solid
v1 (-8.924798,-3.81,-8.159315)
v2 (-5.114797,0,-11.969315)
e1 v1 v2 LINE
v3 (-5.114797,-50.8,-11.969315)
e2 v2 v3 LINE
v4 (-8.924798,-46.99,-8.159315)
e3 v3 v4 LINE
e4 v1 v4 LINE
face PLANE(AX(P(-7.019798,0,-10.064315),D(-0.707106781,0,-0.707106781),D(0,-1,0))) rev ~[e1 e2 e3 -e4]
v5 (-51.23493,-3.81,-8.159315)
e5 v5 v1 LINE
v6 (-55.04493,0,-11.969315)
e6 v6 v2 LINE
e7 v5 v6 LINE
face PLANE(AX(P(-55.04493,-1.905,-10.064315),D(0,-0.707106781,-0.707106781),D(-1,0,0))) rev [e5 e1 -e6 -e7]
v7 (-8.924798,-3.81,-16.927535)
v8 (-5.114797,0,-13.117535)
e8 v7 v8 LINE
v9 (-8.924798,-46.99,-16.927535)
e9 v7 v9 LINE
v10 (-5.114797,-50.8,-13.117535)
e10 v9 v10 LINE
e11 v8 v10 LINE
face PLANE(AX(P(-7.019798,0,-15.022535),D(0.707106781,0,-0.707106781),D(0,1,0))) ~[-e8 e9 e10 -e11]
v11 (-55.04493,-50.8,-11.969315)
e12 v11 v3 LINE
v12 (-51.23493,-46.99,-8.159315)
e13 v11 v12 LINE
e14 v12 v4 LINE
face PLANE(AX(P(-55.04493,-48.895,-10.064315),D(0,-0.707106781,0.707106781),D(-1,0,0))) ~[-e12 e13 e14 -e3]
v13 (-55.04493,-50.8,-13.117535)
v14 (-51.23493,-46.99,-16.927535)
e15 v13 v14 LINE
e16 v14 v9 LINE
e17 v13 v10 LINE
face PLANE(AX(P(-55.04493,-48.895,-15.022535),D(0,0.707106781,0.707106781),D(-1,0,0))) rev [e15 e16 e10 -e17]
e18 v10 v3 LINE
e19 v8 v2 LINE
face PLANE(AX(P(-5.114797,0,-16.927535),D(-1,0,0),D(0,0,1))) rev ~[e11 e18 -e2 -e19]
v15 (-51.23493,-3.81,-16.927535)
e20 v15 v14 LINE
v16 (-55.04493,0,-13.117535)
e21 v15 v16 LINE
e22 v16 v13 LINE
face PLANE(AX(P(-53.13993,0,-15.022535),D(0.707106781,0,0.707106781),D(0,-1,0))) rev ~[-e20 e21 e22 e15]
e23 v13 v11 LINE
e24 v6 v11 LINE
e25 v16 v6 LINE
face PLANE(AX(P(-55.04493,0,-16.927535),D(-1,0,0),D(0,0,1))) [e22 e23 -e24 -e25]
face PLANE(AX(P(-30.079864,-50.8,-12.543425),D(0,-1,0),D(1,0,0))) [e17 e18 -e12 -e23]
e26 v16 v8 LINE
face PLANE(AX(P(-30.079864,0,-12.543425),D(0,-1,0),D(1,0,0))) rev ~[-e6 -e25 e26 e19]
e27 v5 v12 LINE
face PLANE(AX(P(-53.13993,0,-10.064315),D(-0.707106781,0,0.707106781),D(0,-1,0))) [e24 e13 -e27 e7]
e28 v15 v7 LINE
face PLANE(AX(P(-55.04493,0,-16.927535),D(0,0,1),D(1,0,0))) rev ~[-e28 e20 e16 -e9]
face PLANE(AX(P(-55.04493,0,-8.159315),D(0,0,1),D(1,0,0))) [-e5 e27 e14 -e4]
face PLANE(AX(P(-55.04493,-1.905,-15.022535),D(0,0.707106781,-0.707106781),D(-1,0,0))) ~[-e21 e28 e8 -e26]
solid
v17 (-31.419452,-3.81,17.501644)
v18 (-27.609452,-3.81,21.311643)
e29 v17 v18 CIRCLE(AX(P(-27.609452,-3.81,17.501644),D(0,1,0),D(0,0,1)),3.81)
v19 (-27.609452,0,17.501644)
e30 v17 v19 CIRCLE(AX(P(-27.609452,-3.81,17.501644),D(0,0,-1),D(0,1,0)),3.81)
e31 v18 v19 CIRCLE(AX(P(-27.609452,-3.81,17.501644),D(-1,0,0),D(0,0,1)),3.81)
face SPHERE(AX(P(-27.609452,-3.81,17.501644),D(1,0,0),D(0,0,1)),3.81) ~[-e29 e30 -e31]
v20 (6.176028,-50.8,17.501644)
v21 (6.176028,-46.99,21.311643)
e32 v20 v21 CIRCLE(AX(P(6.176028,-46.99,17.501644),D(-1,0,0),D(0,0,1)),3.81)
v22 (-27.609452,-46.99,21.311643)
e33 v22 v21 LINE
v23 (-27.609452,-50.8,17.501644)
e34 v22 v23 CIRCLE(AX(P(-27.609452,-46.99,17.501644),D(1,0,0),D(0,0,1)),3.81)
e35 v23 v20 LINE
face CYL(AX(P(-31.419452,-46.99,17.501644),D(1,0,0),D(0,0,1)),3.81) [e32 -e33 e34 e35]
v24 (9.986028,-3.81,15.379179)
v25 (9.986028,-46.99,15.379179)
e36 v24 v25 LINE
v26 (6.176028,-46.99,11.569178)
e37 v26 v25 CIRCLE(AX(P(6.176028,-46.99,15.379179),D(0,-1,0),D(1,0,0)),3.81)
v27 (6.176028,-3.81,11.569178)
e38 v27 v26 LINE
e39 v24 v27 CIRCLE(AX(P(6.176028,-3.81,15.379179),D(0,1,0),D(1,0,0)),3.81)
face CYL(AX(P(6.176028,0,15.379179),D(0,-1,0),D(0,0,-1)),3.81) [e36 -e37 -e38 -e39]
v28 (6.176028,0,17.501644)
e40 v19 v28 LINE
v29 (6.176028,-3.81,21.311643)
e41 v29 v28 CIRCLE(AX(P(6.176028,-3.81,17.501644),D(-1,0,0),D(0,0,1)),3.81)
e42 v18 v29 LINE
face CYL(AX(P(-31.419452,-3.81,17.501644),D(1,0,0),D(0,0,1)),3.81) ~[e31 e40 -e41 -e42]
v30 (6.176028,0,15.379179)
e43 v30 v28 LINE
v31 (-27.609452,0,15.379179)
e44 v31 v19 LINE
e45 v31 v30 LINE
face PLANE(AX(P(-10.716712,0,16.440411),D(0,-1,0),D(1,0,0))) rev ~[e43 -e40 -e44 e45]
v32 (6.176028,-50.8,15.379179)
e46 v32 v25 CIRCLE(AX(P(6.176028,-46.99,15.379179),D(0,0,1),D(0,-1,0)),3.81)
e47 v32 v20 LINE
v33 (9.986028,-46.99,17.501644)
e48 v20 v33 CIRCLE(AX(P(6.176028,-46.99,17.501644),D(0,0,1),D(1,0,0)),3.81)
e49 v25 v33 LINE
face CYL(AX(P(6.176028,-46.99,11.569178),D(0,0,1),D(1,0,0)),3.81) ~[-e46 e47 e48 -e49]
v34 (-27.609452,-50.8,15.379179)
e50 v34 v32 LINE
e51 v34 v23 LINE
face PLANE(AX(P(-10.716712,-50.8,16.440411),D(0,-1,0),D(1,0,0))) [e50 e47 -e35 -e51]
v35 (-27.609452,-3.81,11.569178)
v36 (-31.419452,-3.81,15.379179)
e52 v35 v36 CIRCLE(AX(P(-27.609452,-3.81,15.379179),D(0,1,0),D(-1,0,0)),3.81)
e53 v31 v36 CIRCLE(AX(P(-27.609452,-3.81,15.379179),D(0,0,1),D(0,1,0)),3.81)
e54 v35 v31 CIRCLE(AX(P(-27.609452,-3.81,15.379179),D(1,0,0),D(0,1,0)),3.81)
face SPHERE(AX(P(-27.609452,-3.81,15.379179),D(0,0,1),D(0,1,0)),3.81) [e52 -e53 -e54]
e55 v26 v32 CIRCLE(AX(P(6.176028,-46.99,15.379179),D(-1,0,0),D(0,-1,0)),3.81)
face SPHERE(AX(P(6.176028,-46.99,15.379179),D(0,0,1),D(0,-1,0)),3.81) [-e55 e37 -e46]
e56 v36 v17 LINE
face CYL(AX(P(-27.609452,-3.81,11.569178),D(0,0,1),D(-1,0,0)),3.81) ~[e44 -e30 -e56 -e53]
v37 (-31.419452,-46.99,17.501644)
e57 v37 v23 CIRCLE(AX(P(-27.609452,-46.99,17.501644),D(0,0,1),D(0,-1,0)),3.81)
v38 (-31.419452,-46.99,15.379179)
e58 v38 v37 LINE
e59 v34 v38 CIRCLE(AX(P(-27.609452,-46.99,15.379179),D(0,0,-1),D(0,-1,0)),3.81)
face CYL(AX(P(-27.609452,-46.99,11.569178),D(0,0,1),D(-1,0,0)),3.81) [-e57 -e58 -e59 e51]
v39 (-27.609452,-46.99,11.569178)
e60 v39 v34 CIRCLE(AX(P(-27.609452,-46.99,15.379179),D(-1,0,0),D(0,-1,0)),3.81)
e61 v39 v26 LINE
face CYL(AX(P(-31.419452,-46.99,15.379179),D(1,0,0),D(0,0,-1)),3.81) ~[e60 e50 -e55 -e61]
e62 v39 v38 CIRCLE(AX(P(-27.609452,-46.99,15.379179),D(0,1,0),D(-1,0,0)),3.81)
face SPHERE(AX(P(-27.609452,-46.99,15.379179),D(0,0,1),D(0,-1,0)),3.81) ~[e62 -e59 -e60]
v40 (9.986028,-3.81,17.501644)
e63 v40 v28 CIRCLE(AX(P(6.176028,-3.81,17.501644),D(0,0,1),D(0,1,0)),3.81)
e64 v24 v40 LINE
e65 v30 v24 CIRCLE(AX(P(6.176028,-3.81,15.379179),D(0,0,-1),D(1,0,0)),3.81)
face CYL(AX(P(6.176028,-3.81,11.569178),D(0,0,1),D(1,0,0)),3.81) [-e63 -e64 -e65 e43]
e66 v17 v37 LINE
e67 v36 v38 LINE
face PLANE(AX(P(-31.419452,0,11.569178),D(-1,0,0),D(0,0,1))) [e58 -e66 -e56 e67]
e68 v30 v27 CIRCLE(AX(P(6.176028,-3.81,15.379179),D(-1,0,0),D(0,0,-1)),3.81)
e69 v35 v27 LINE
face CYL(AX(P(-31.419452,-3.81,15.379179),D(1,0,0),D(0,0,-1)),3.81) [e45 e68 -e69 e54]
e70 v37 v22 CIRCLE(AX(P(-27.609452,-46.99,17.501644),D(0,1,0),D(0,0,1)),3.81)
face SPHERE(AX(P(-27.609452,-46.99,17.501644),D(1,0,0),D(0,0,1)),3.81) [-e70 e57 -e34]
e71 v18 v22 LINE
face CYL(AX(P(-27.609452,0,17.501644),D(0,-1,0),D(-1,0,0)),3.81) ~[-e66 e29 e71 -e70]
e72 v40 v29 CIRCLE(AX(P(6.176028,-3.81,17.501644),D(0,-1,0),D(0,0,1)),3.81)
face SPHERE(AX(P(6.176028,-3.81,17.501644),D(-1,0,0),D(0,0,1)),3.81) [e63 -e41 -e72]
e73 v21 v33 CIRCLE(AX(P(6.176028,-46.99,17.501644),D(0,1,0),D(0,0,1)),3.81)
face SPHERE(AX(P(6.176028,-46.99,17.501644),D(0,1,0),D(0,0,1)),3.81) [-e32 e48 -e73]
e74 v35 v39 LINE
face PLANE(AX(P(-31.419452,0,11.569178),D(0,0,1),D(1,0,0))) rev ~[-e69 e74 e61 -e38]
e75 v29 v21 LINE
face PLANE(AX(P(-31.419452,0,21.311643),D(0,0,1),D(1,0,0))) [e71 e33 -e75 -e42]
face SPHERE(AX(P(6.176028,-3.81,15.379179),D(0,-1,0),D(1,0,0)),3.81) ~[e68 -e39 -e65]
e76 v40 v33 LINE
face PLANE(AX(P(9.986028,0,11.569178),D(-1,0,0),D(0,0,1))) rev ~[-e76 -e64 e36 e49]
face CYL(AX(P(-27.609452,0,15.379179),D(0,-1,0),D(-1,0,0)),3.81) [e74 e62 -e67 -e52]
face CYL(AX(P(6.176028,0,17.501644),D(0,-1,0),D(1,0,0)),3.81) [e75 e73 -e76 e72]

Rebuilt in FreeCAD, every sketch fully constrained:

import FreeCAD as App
import Part
import Sketcher
Q = App.Units.Quantity


def edges_at(feature, points):
    """Names of the edges that pass closest to the given points."""
    edges = feature.Shape.Edges
    near = lambda p: min(range(len(edges)), key=lambda i: edges[i].distToShape(Part.Vertex(*p))[0])
    return sorted({f"Edge{near(p) + 1}" for p in points})

doc = App.newDocument("Part")
body = doc.addObject("PartDesign::Body", "Body")
body.AllowCompound = True

# Sketch on XZ plane
sketch1 = body.newObject("Sketcher::SketchObject", "Sketch")
sketch1.AttachmentSupport = (doc.getObject("XZ_Plane"), [""])
sketch1.MapMode = "FlatFace"
sketch1.addGeometry(Part.LineSegment(App.Vector(-55, -8, 0), App.Vector(-55, -17, 0)), False)
sketch1.addGeometry(Part.LineSegment(App.Vector(-55, -17, 0), App.Vector(-5, -17, 0)), False)
sketch1.addGeometry(Part.LineSegment(App.Vector(-5, -17, 0), App.Vector(-5, -8, 0)), False)
sketch1.addGeometry(Part.LineSegment(App.Vector(-5, -8, 0), App.Vector(-55, -8, 0)), False)
sketch1.addGeometry(Part.LineSegment(App.Vector(-31, 21, 0), App.Vector(-31, 12, 0)), False)
sketch1.addGeometry(Part.LineSegment(App.Vector(-31, 12, 0), App.Vector(10, 12, 0)), False)
sketch1.addGeometry(Part.LineSegment(App.Vector(10, 12, 0), App.Vector(10, 21, 0)), False)
sketch1.addGeometry(Part.LineSegment(App.Vector(10, 21, 0), App.Vector(-31, 21, 0)), False)
sketch1.addConstraint(Sketcher.Constraint("Coincident", 0, 2, 1, 1))
sketch1.addConstraint(Sketcher.Constraint("Coincident", 1, 2, 2, 1))
sketch1.addConstraint(Sketcher.Constraint("Coincident", 2, 2, 3, 1))
sketch1.addConstraint(Sketcher.Constraint("Coincident", 3, 2, 0, 1))
sketch1.addConstraint(Sketcher.Constraint("Coincident", 4, 2, 5, 1))
sketch1.addConstraint(Sketcher.Constraint("Coincident", 5, 2, 6, 1))
sketch1.addConstraint(Sketcher.Constraint("Coincident", 6, 2, 7, 1))
sketch1.addConstraint(Sketcher.Constraint("Coincident", 7, 2, 4, 1))
sketch1.addConstraint(Sketcher.Constraint("Vertical", 0))
sketch1.addConstraint(Sketcher.Constraint("Horizontal", 1))
sketch1.addConstraint(Sketcher.Constraint("Vertical", 2))
sketch1.addConstraint(Sketcher.Constraint("Horizontal", 3))
sketch1.addConstraint(Sketcher.Constraint("Vertical", 4))
sketch1.addConstraint(Sketcher.Constraint("Horizontal", 5))
sketch1.addConstraint(Sketcher.Constraint("Vertical", 6))
sketch1.addConstraint(Sketcher.Constraint("Horizontal", 7))
sketch1.addConstraint(Sketcher.Constraint("DistanceX", 5, 1, 5, 2, 41.40548))
sketch1.addConstraint(Sketcher.Constraint("DistanceY", 0, 2, 0, 1, 8.76822))
sketch1.addConstraint(Sketcher.Constraint("DistanceX", 1, 1, 1, 2, 49.930133))
sketch1.addConstraint(Sketcher.Constraint("DistanceY", 4, 2, 4, 1, 9.742465))
sketch1.addConstraint(Sketcher.Constraint("DistanceX", 0, 2, -1, 1, 55.04493))
sketch1.addConstraint(Sketcher.Constraint("DistanceX", 4, 2, -1, 1, 31.419452))
sketch1.addConstraint(Sketcher.Constraint("DistanceY", -1, 1, 4, 2, 11.569178))
sketch1.addConstraint(Sketcher.Constraint("DistanceY", 2, 2, 6, 2, 29.470958))
pad1 = body.newObject("PartDesign::Pad", "Pad")
pad1.Profile = sketch1
pad1.Length = Q("2 in")
doc.recompute()

fillet = body.newObject("PartDesign::Fillet", "Fillet")
fillet.Base = (pad1, edges_at(pad1, [
    (-10.717, 0, 21.312),
    (9.986, -25.4, 21.312),
    (-10.717, -50.8, 21.312),
    (-31.419, -25.4, 21.312),
    (9.986, -50.8, 16.44),
    (-31.419, -50.8, 16.44),
    (-10.717, -50.8, 11.569),
    (9.986, -25.4, 11.569),
    (9.986, 0, 16.44),
    (-31.419, 0, 16.44),
    (-10.717, 0, 11.569),
    (-31.419, -25.4, 11.569),
]))
fillet.Radius = Q("0.15 in")
doc.recompute()

chamfer = body.newObject("PartDesign::Chamfer", "Chamfer")
chamfer.Base = (fillet, edges_at(fillet, [
    (-30.08, 0, -8.159),
    (-30.08, 0, -16.928),
    (-55.045, -25.4, -8.159),
    (-55.045, -25.4, -16.928),
    (-5.115, -25.4, -8.159),
    (-30.08, -50.8, -8.159),
    (-30.08, -50.8, -16.928),
    (-5.115, -25.4, -16.928),
]))
chamfer.Size = Q("0.15 in")

doc.recompute()
